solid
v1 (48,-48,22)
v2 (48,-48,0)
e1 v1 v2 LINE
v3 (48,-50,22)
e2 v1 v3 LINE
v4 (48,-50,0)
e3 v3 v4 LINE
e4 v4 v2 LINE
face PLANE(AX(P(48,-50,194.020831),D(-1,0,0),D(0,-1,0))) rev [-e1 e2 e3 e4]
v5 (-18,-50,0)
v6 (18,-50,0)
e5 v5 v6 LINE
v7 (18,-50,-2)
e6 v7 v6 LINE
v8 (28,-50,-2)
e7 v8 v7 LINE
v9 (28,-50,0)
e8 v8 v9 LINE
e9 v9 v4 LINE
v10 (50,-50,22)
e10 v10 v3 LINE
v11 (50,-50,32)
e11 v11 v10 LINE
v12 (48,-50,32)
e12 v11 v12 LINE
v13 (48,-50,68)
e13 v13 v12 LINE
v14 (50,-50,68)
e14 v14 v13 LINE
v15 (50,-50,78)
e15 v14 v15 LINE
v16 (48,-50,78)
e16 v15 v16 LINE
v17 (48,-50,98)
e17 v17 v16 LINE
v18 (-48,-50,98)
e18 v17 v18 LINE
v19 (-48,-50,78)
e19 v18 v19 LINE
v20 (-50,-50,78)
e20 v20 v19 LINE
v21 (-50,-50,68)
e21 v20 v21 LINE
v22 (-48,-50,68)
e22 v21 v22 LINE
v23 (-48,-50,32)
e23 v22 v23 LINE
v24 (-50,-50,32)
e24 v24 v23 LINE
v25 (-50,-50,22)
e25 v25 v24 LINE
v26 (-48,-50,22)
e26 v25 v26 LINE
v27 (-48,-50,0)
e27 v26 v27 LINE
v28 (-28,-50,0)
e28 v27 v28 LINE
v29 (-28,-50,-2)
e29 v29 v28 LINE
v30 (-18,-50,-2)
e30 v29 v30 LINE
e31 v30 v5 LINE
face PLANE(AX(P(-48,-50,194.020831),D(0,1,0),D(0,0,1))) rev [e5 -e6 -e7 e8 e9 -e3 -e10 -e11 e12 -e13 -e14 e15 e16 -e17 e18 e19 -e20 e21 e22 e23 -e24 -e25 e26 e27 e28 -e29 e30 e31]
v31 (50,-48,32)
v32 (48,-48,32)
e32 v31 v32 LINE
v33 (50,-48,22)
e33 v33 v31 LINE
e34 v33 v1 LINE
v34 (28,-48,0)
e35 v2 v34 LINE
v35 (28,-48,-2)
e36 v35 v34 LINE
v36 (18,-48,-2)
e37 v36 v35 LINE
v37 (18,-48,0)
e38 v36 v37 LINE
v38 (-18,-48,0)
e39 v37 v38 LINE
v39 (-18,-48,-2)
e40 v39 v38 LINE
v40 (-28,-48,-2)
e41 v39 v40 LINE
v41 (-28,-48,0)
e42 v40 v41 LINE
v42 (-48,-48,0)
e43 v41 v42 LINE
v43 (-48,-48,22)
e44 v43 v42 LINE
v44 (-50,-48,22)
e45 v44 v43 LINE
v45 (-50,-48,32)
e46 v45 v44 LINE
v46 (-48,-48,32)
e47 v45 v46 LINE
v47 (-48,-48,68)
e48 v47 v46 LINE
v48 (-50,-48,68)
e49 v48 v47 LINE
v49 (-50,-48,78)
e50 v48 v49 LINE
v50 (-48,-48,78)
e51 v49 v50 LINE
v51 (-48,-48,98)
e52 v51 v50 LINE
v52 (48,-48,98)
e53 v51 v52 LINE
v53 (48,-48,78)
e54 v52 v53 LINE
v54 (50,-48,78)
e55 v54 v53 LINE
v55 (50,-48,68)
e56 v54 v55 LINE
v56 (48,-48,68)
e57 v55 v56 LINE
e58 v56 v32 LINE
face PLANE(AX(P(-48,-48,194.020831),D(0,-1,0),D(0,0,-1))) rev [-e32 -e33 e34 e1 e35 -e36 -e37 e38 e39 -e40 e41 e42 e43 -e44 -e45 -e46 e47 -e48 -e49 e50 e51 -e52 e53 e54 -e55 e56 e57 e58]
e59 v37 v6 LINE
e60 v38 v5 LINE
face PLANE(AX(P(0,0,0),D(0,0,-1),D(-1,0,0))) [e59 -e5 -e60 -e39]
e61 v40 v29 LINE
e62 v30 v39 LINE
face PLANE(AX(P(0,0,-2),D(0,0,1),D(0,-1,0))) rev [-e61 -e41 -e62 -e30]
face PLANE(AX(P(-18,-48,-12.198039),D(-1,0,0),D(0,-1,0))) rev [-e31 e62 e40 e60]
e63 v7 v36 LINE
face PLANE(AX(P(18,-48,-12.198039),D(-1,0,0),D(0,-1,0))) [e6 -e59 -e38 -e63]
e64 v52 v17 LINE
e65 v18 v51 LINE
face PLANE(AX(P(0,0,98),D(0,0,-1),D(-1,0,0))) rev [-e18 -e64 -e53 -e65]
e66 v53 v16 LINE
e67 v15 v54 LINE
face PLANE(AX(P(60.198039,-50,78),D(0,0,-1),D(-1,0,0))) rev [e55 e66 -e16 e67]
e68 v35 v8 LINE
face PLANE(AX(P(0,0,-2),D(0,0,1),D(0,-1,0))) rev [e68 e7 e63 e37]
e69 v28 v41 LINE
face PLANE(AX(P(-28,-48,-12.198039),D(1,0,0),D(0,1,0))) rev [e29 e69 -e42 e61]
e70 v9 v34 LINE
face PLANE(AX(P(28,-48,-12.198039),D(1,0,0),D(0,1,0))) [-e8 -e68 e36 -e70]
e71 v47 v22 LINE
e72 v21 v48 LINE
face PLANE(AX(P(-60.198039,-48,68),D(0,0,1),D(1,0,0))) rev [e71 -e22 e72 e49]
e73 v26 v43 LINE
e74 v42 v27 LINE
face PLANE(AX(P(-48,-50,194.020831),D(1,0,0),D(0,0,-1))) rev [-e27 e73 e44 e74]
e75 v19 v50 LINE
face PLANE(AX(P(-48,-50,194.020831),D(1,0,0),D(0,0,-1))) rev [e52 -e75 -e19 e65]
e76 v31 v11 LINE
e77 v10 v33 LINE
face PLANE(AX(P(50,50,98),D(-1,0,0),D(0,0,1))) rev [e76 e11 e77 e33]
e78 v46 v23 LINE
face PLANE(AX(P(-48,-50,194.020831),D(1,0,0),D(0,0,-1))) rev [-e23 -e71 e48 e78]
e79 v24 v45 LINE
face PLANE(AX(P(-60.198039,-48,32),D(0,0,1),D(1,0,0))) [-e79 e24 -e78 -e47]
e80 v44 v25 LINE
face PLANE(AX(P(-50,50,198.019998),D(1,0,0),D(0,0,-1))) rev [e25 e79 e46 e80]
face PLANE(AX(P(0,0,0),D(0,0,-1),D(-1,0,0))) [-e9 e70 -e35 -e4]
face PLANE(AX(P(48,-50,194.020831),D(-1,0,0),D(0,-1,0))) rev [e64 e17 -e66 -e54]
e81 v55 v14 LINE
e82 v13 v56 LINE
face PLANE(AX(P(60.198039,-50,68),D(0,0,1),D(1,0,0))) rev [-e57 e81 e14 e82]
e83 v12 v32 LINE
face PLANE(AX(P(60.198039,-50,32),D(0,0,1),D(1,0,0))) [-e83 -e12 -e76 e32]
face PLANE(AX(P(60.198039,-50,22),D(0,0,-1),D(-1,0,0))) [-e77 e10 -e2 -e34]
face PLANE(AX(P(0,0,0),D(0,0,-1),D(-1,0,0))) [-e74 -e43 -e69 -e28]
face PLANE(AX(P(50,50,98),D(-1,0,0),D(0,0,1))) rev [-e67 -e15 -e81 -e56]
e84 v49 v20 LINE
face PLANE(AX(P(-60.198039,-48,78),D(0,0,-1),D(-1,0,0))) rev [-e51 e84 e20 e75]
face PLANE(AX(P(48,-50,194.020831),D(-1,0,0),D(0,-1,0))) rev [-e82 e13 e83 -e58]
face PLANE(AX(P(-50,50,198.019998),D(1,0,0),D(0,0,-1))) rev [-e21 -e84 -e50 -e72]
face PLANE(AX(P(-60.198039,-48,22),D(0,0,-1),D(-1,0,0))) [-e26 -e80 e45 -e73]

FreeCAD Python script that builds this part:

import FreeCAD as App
import Part
import Sketcher
from FreeCAD import Vector


def add_polygon(sketch, points):
    """Adds a closed chain of lines whose ends are joined by coincident constraints."""
    first, n = sketch.GeometryCount, len(points)
    for a, b in zip(points, points[1:] + points[:1]):
        sketch.addGeometry(Part.LineSegment(App.Vector(*a, 0), App.Vector(*b, 0)), False)
    for i in range(n):
        sketch.addConstraint(Sketcher.Constraint("Coincident", first + i, 2, first + (i + 1) % n, 1))

doc = App.newDocument("Part")
body = doc.addObject("PartDesign::Body", "Body")

# Sketch on XY plane
sketch1 = body.newObject("Sketcher::SketchObject", "Sketch")
sketch1.AttachmentSupport = (doc.getObject("XY_Plane"), [""])
sketch1.MapMode = "FlatFace"
add_polygon(sketch1, [(-48, -48), (-48, -50), (48, -50), (48, -48)])  # lines 0-3
sketch1.addConstraint([
    Sketcher.Constraint("Vertical", 0),
    Sketcher.Constraint("Horizontal", 1),
    Sketcher.Constraint("Vertical", 2),
    Sketcher.Constraint("Horizontal", 3),
    Sketcher.Constraint("DistanceX", 1, 1, 1, 2, 96.0),
    Sketcher.Constraint("DistanceY", 0, 2, 0, 1, 2.0),
    Sketcher.Constraint("DistanceX", 0, 2, -1, 1, 48.0),
    Sketcher.Constraint("DistanceY", 0, 2, -1, 1, 50.0),
])
pad1 = body.newObject("PartDesign::Pad", "Pad")
pad1.Profile = sketch1
pad1.Length = 98

# Sketch on YZ plane
sketch2 = body.newObject("Sketcher::SketchObject", "Sketch001")
sketch2.AttachmentSupport = (doc.getObject("YZ_Plane"), [""])
sketch2.MapMode = "FlatFace"
sketch2.AttachmentOffset = App.Placement(Vector(0, 0, -48), App.Rotation())
add_polygon(sketch2, [(-48, 68), (-50, 68), (-50, 78), (-48, 78)])  # lines 0-3
sketch2.addConstraint([
    Sketcher.Constraint("Horizontal", 0),
    Sketcher.Constraint("Vertical", 1),
    Sketcher.Constraint("Horizontal", 2),
    Sketcher.Constraint("Vertical", 3),
    Sketcher.Constraint("DistanceX", 0, 2, 0, 1, 2.0),
    Sketcher.Constraint("DistanceY", 1, 1, 1, 2, 10.0),
    Sketcher.Constraint("DistanceX", 0, 2, -1, 1, 50.0),
    Sketcher.Constraint("DistanceY", -1, 1, 0, 2, 68.0),
])
pad2 = body.newObject("PartDesign::Pad", "Pad001")
pad2.Profile = sketch2
pad2.Length = 2
pad2.Reversed = True
doc.recompute()

datumplane = body.newObject("PartDesign::Plane", "DatumPlane")
datumplane.AttachmentSupport = (doc.getObject("XY_Plane"), [""])
datumplane.MapMode = "FlatFace"
datumplane.AttachmentOffset = App.Placement(Vector(0, 0, 50), App.Rotation())
mirrored = body.newObject("PartDesign::Mirrored", "Mirrored")
mirrored.Originals = [pad2]
mirrored.MirrorPlane = (datumplane, [""])
body.Tip = mirrored

# Sketch on YZ plane
sketch3 = body.newObject("Sketcher::SketchObject", "Sketch002")
sketch3.AttachmentSupport = (doc.getObject("YZ_Plane"), [""])
sketch3.MapMode = "FlatFace"
sketch3.AttachmentOffset = App.Placement(Vector(0, 0, 48), App.Rotation())
add_polygon(sketch3, [(-48, 78), (-50, 78), (-50, 68), (-48, 68)])  # lines 0-3
sketch3.addConstraint([
    Sketcher.Constraint("Horizontal", 0),
    Sketcher.Constraint("Vertical", 1),
    Sketcher.Constraint("Horizontal", 2),
    Sketcher.Constraint("Vertical", 3),
    Sketcher.Constraint("DistanceX", 0, 2, 0, 1, 2.0),
    Sketcher.Constraint("DistanceY", 1, 2, 1, 1, 10.0),
    Sketcher.Constraint("DistanceX", 0, 2, -1, 1, 50.0),
    Sketcher.Constraint("DistanceY", -1, 1, 0, 2, 78.0),
])
pad3 = body.newObject("PartDesign::Pad", "Pad002")
pad3.Profile = sketch3
pad3.Length = 2
doc.recompute()

datumplane2 = body.newObject("PartDesign::Plane", "DatumPlane001")
datumplane2.AttachmentSupport = (doc.getObject("XY_Plane"), [""])
datumplane2.MapMode = "FlatFace"
datumplane2.AttachmentOffset = App.Placement(Vector(0, 0, 50), App.Rotation())
mirrored2 = body.newObject("PartDesign::Mirrored", "Mirrored001")
mirrored2.Originals = [pad3]
mirrored2.MirrorPlane = (datumplane2, [""])
body.Tip = mirrored2

# Sketch on XY plane
sketch4 = body.newObject("Sketcher::SketchObject", "Sketch003")
sketch4.AttachmentSupport = (doc.getObject("XY_Plane"), [""])
sketch4.MapMode = "FlatFace"
add_polygon(sketch4, [(-18, -48), (-18, -50), (-28, -50), (-28, -48)])  # lines 0-3
sketch4.addConstraint([
    Sketcher.Constraint("Vertical", 0),
    Sketcher.Constraint("Horizontal", 1),
    Sketcher.Constraint("Vertical", 2),
    Sketcher.Constraint("Horizontal", 3),
    Sketcher.Constraint("DistanceX", 1, 2, 1, 1, 10.0),
    Sketcher.Constraint("DistanceY", 0, 2, 0, 1, 2.0),
    Sketcher.Constraint("DistanceX", 0, 2, -1, 1, 18.0),
    Sketcher.Constraint("DistanceY", 0, 2, -1, 1, 50.0),
])
pad4 = body.newObject("PartDesign::Pad", "Pad003")
pad4.Profile = sketch4
pad4.Length = 2
pad4.Reversed = True
doc.recompute()

mirrored3 = body.newObject("PartDesign::Mirrored", "Mirrored002")
mirrored3.Originals = [pad4]
mirrored3.MirrorPlane = (doc.getObject("YZ_Plane"), [""])
body.Tip = mirrored3

doc.recompute()
